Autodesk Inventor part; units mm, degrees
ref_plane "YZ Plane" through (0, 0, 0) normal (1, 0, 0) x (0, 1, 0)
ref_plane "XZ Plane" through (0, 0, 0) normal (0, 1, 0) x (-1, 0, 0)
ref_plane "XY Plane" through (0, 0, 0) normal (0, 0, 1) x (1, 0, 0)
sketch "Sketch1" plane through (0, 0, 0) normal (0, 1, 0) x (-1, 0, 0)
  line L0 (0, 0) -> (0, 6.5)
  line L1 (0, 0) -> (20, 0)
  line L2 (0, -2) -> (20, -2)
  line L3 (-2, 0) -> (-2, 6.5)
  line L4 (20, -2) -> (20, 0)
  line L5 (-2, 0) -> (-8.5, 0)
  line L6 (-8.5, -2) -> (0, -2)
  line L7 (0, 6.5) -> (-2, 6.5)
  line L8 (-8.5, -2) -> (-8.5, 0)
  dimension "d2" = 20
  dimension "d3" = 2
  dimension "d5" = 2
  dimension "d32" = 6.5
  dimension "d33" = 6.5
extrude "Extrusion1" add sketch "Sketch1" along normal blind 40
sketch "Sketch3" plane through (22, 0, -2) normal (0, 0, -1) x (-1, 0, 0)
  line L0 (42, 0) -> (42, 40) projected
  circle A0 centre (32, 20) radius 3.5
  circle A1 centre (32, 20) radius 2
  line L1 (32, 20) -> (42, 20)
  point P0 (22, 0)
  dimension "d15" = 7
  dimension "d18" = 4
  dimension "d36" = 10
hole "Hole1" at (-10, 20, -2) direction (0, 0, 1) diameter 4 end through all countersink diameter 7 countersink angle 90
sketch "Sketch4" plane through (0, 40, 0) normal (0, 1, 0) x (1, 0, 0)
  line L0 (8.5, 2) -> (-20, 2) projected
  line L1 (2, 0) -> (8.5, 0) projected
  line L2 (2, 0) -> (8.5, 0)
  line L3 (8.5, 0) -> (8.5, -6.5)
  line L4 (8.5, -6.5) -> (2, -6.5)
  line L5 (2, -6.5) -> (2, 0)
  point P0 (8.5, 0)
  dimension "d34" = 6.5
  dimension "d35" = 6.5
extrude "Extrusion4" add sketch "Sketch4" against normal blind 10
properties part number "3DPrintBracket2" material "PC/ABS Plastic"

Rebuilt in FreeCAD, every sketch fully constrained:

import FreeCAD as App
import Part
import Sketcher
from FreeCAD import Vector


def add_polygon(sketch, points):
    """Adds a closed chain of lines whose ends are joined by coincident constraints."""
    first, n = sketch.GeometryCount, len(points)
    for a, b in zip(points, points[1:] + points[:1]):
        sketch.addGeometry(Part.LineSegment(App.Vector(*a, 0), App.Vector(*b, 0)), False)
    for i in range(n):
        sketch.addConstraint(Sketcher.Constraint("Coincident", first + i, 2, first + (i + 1) % n, 1))

doc = App.newDocument("Part")
body = doc.addObject("PartDesign::Body", "Body")

sketch1 = body.newObject("Sketcher::SketchObject", "Sketch")
sketch1.AttachmentSupport = (doc.getObject("XZ_Plane"), [""])
sketch1.MapMode = "FlatFace"
add_polygon(sketch1, [(-20, 0), (0, 0), (0, 6.5), (2, 6.5), (2, 0), (8.5, 0), (8.5, -2), (-20, -2)])
sketch1.addConstraint(Sketcher.Constraint("Horizontal", 0))
sketch1.addConstraint(Sketcher.Constraint("Vertical", 1))
sketch1.addConstraint(Sketcher.Constraint("Horizontal", 2))
sketch1.addConstraint(Sketcher.Constraint("Vertical", 3))
sketch1.addConstraint(Sketcher.Constraint("Horizontal", 4))
sketch1.addConstraint(Sketcher.Constraint("Vertical", 5))
sketch1.addConstraint(Sketcher.Constraint("Horizontal", 6))
sketch1.addConstraint(Sketcher.Constraint("Vertical", 7))
sketch1.addConstraint(Sketcher.Constraint("Coincident", 0, 2, -1, 1))
sketch1.addConstraint(Sketcher.Constraint("PointOnObject", 3, 2, -1))
sketch1.addConstraint(Sketcher.Constraint("Equal", 4, 1))
sketch1.addConstraint(Sketcher.Constraint("Equal", 2, 5))
sketch1.addConstraint(Sketcher.Constraint("DistanceX", 0, 1, 0, 2, 20.0))
sketch1.addConstraint(Sketcher.Constraint("DistanceX", 2, 1, 2, 2, 2.0))
sketch1.addConstraint(Sketcher.Constraint("DistanceX", 4, 1, 4, 2, 6.5))
pad1 = body.newObject("PartDesign::Pad", "Pad")
pad1.Profile = sketch1
pad1.Length = 40
pad1.Reversed = True

sketch2 = body.newObject("Sketcher::SketchObject", "Sketch001")
sketch2.AttachmentSupport = (doc.getObject("XY_Plane"), [""])
sketch2.MapMode = "FlatFace"
sketch2.AttachmentOffset = App.Placement(Vector(0, 0, -2), App.Rotation())
sketch2.addGeometry(Part.Circle(Vector(-10, 20, 0), Vector(0, 0, 1), 2), False)
sketch2.addConstraint(Sketcher.Constraint("Diameter", 0, 4.0))
sketch2.addConstraint(Sketcher.Constraint("DistanceX", 0, 3, -1, 1, 10.0))
sketch2.addConstraint(Sketcher.Constraint("DistanceY", -1, 1, 0, 3, 20.0))
doc.recompute()
hole = body.newObject("PartDesign::Hole", "Hole")
hole.Profile = sketch2
hole.ThreadType = "None"
hole.Diameter = 4
hole.DepthType = "ThroughAll"
hole.HoleCutType = "Countersink"
hole.HoleCutDiameter = 7
hole.HoleCutCountersinkAngle = 90
hole.Reversed = True

sketch3 = body.newObject("Sketcher::SketchObject", "Sketch002")
sketch3.AttachmentSupport = (doc.getObject("XZ_Plane"), [""])
sketch3.MapMode = "FlatFace"
sketch3.AttachmentOffset = App.Placement(Vector(0, 0, -40), App.Rotation())
add_polygon(sketch3, [(8, 0), (2, 0), (2, 6), (8, 6)])
sketch3.addConstraint(Sketcher.Constraint("Horizontal", 0))
sketch3.addConstraint(Sketcher.Constraint("Vertical", 1))
sketch3.addConstraint(Sketcher.Constraint("Horizontal", 2))
sketch3.addConstraint(Sketcher.Constraint("Vertical", 3))
sketch3.addConstraint(Sketcher.Constraint("PointOnObject", 0, 2, -1))
sketch3.addConstraint(Sketcher.Constraint("Equal", 2, 1))
sketch3.addConstraint(Sketcher.Constraint("DistanceX", 0, 2, 0, 1, 6.5))
sketch3.addConstraint(Sketcher.Constraint("DistanceX", -1, 1, 0, 2, 2.0))
pad2 = body.newObject("PartDesign::Pad", "Pad001")
pad2.Profile = sketch3
pad2.Length = 10

doc.recompute()
